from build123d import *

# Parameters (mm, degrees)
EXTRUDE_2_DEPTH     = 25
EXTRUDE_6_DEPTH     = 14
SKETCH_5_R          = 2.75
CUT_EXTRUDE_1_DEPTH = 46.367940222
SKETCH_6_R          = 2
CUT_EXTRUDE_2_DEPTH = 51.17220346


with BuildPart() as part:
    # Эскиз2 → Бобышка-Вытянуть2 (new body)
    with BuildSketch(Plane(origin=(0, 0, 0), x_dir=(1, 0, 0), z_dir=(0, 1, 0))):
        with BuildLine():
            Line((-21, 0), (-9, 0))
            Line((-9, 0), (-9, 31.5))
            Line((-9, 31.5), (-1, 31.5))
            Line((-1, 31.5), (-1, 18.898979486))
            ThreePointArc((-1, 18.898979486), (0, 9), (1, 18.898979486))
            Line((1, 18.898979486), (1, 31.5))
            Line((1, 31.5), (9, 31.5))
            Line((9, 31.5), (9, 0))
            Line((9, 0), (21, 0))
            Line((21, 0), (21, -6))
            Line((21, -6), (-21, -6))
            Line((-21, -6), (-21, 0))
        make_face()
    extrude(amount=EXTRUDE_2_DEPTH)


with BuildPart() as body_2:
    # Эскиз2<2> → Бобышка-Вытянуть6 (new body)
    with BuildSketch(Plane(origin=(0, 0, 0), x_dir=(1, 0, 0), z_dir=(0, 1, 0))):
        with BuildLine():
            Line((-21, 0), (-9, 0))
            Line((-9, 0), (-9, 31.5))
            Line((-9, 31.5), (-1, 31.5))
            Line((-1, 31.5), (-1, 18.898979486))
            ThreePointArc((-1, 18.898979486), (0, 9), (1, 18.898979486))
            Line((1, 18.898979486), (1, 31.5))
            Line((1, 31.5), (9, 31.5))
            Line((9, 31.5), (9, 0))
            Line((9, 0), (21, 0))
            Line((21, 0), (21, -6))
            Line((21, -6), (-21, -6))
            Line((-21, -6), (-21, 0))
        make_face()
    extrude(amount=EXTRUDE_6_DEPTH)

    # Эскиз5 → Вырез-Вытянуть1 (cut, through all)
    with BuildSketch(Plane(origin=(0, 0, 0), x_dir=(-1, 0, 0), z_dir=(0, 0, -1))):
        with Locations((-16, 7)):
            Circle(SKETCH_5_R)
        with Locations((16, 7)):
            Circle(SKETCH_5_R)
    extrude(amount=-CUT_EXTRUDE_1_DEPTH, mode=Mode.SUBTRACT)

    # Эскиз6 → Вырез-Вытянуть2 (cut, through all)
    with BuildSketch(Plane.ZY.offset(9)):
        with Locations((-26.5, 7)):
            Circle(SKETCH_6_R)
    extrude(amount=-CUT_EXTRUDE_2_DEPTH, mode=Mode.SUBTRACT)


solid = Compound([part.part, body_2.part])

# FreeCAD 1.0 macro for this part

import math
import FreeCAD as App
import Part
import Sketcher
Q = App.Units.Quantity

doc = App.newDocument("Part")
body = doc.addObject("PartDesign::Body", "Body")

# Sketch on XZ plane
sketch1 = body.newObject("Sketcher::SketchObject", "Sketch")
sketch1.AttachmentSupport = (doc.getObject("XZ_Plane"), [""])
sketch1.MapMode = "FlatFace"
sketch1.addGeometry(Part.LineSegment(App.Vector(-9, 0, 0), App.Vector(-21, 0, 0)), False)
sketch1.addGeometry(Part.LineSegment(App.Vector(-21, 0, 0), App.Vector(-21, 6, 0)), False)
sketch1.addGeometry(Part.LineSegment(App.Vector(-21, 6, 0), App.Vector(21, 6, 0)), False)
sketch1.addGeometry(Part.LineSegment(App.Vector(21, 6, 0), App.Vector(21, 0, 0)), False)
sketch1.addGeometry(Part.LineSegment(App.Vector(21, 0, 0), App.Vector(9, 0, 0)), False)
sketch1.addGeometry(Part.LineSegment(App.Vector(9, 0, 0), App.Vector(9, -31.5, 0)), False)
sketch1.addGeometry(Part.LineSegment(App.Vector(9, -31.5, 0), App.Vector(1, -31.5, 0)), False)
sketch1.addGeometry(Part.LineSegment(App.Vector(1, -31.5, 0), App.Vector(1, -18.9, 0)), False)
sketch1.addGeometry(Part.ArcOfCircle(Part.Circle(App.Vector(0, -14, 0), App.Vector(0, 0, 1), 5), math.radians(-78), math.radians(258)), False)
sketch1.addGeometry(Part.LineSegment(App.Vector(-1, -18.9, 0), App.Vector(-1, -31.5, 0)), False)
sketch1.addGeometry(Part.LineSegment(App.Vector(-1, -31.5, 0), App.Vector(-9, -31.5, 0)), False)
sketch1.addGeometry(Part.LineSegment(App.Vector(-9, -31.5, 0), App.Vector(-9, 0, 0)), False)
sketch1.addConstraint(Sketcher.Constraint("Coincident", 0, 2, 1, 1))
sketch1.addConstraint(Sketcher.Constraint("Coincident", 1, 2, 2, 1))
sketch1.addConstraint(Sketcher.Constraint("Coincident", 2, 2, 3, 1))
sketch1.addConstraint(Sketcher.Constraint("Coincident", 3, 2, 4, 1))
sketch1.addConstraint(Sketcher.Constraint("Coincident", 4, 2, 5, 1))
sketch1.addConstraint(Sketcher.Constraint("Coincident", 5, 2, 6, 1))
sketch1.addConstraint(Sketcher.Constraint("Coincident", 6, 2, 7, 1))
sketch1.addConstraint(Sketcher.Constraint("Coincident", 7, 2, 8, 1))
sketch1.addConstraint(Sketcher.Constraint("Coincident", 8, 2, 9, 1))
sketch1.addConstraint(Sketcher.Constraint("Coincident", 9, 2, 10, 1))
sketch1.addConstraint(Sketcher.Constraint("Coincident", 10, 2, 11, 1))
sketch1.addConstraint(Sketcher.Constraint("Coincident", 11, 2, 0, 1))
sketch1.addConstraint(Sketcher.Constraint("Horizontal", 0))
sketch1.addConstraint(Sketcher.Constraint("Vertical", 1))
sketch1.addConstraint(Sketcher.Constraint("Horizontal", 2))
sketch1.addConstraint(Sketcher.Constraint("Vertical", 3))
sketch1.addConstraint(Sketcher.Constraint("Horizontal", 4))
sketch1.addConstraint(Sketcher.Constraint("Vertical", 5))
sketch1.addConstraint(Sketcher.Constraint("Horizontal", 6))
sketch1.addConstraint(Sketcher.Constraint("Vertical", 7))
sketch1.addConstraint(Sketcher.Constraint("Vertical", 9))
sketch1.addConstraint(Sketcher.Constraint("Horizontal", 10))
sketch1.addConstraint(Sketcher.Constraint("Vertical", 11))
sketch1.addConstraint(Sketcher.Constraint("Symmetric", 0, 2, 3, 2, -1, 1))
sketch1.addConstraint(Sketcher.Constraint("Symmetric", 7, 2, 8, 2, -2))
sketch1.addConstraint(Sketcher.Constraint("Symmetric", 5, 2, 10, 2, -2))
sketch1.addConstraint(Sketcher.Constraint("PointOnObject", 0, 2, -1))
sketch1.addConstraint(Sketcher.Constraint("Radius", 8, Q("5 mm")))
sketch1.addConstraint(Sketcher.Constraint("DistanceX", 0, 2, 0, 1, Q("12 mm")))
sketch1.addConstraint(Sketcher.Constraint("DistanceX", 2, 1, 2, 2, Q("42 mm")))
sketch1.addConstraint(Sketcher.Constraint("DistanceX", 6, 2, 6, 1, Q("8 mm")))
sketch1.addConstraint(Sketcher.Constraint("DistanceY", 1, 1, 1, 2, Q("6 mm")))
sketch1.addConstraint(Sketcher.Constraint("DistanceY", 5, 2, 5, 1, Q("31.5 mm")))
sketch1.addConstraint(Sketcher.Constraint("DistanceY", 8, 3, -1, 1, Q("14 mm")))
pad1 = body.newObject("PartDesign::Pad", "Pad")
pad1.Profile = sketch1
pad1.Length = 25
pad1.Reversed = True
body2 = doc.addObject("PartDesign::Body", "Body001")

# Sketch on XZ plane
sketch2 = body2.newObject("Sketcher::SketchObject", "Sketch001")
sketch2.AttachmentSupport = (doc.getObject("XZ_Plane001"), [""])
sketch2.MapMode = "FlatFace"
sketch2.addGeometry(Part.LineSegment(App.Vector(-9, 0, 0), App.Vector(-21, 0, 0)), False)
sketch2.addGeometry(Part.LineSegment(App.Vector(-21, 0, 0), App.Vector(-21, 6, 0)), False)
sketch2.addGeometry(Part.LineSegment(App.Vector(-21, 6, 0), App.Vector(21, 6, 0)), False)
sketch2.addGeometry(Part.LineSegment(App.Vector(21, 6, 0), App.Vector(21, 0, 0)), False)
sketch2.addGeometry(Part.LineSegment(App.Vector(21, 0, 0), App.Vector(9, 0, 0)), False)
sketch2.addGeometry(Part.LineSegment(App.Vector(9, 0, 0), App.Vector(9, -31.5, 0)), False)
sketch2.addGeometry(Part.LineSegment(App.Vector(9, -31.5, 0), App.Vector(1, -31.5, 0)), False)
sketch2.addGeometry(Part.LineSegment(App.Vector(1, -31.5, 0), App.Vector(1, -18.9, 0)), False)
sketch2.addGeometry(Part.ArcOfCircle(Part.Circle(App.Vector(0, -14, 0), App.Vector(0, 0, 1), 5), math.radians(-78), math.radians(258)), False)
sketch2.addGeometry(Part.LineSegment(App.Vector(-1, -18.9, 0), App.Vector(-1, -31.5, 0)), False)
sketch2.addGeometry(Part.LineSegment(App.Vector(-1, -31.5, 0), App.Vector(-9, -31.5, 0)), False)
sketch2.addGeometry(Part.LineSegment(App.Vector(-9, -31.5, 0), App.Vector(-9, 0, 0)), False)
sketch2.addConstraint(Sketcher.Constraint("Coincident", 0, 2, 1, 1))
sketch2.addConstraint(Sketcher.Constraint("Coincident", 1, 2, 2, 1))
sketch2.addConstraint(Sketcher.Constraint("Coincident", 2, 2, 3, 1))
sketch2.addConstraint(Sketcher.Constraint("Coincident", 3, 2, 4, 1))
sketch2.addConstraint(Sketcher.Constraint("Coincident", 4, 2, 5, 1))
sketch2.addConstraint(Sketcher.Constraint("Coincident", 5, 2, 6, 1))
sketch2.addConstraint(Sketcher.Constraint("Coincident", 6, 2, 7, 1))
sketch2.addConstraint(Sketcher.Constraint("Coincident", 7, 2, 8, 1))
sketch2.addConstraint(Sketcher.Constraint("Coincident", 8, 2, 9, 1))
sketch2.addConstraint(Sketcher.Constraint("Coincident", 9, 2, 10, 1))
sketch2.addConstraint(Sketcher.Constraint("Coincident", 10, 2, 11, 1))
sketch2.addConstraint(Sketcher.Constraint("Coincident", 11, 2, 0, 1))
sketch2.addConstraint(Sketcher.Constraint("Horizontal", 0))
sketch2.addConstraint(Sketcher.Constraint("Vertical", 1))
sketch2.addConstraint(Sketcher.Constraint("Horizontal", 2))
sketch2.addConstraint(Sketcher.Constraint("Vertical", 3))
sketch2.addConstraint(Sketcher.Constraint("Horizontal", 4))
sketch2.addConstraint(Sketcher.Constraint("Vertical", 5))
sketch2.addConstraint(Sketcher.Constraint("Horizontal", 6))
sketch2.addConstraint(Sketcher.Constraint("Vertical", 7))
sketch2.addConstraint(Sketcher.Constraint("Vertical", 9))
sketch2.addConstraint(Sketcher.Constraint("Horizontal", 10))
sketch2.addConstraint(Sketcher.Constraint("Vertical", 11))
sketch2.addConstraint(Sketcher.Constraint("Symmetric", 0, 2, 3, 2, -1, 1))
sketch2.addConstraint(Sketcher.Constraint("Symmetric", 7, 2, 8, 2, -2))
sketch2.addConstraint(Sketcher.Constraint("Symmetric", 5, 2, 10, 2, -2))
sketch2.addConstraint(Sketcher.Constraint("PointOnObject", 0, 2, -1))
sketch2.addConstraint(Sketcher.Constraint("Radius", 8, Q("5 mm")))
sketch2.addConstraint(Sketcher.Constraint("DistanceX", 0, 2, 0, 1, Q("12 mm")))
sketch2.addConstraint(Sketcher.Constraint("DistanceX", 2, 1, 2, 2, Q("42 mm")))
sketch2.addConstraint(Sketcher.Constraint("DistanceX", 6, 2, 6, 1, Q("8 mm")))
sketch2.addConstraint(Sketcher.Constraint("DistanceY", 1, 1, 1, 2, Q("6 mm")))
sketch2.addConstraint(Sketcher.Constraint("DistanceY", 5, 2, 5, 1, Q("31.5 mm")))
sketch2.addConstraint(Sketcher.Constraint("DistanceY", 8, 3, -1, 1, Q("14 mm")))
pad2 = body2.newObject("PartDesign::Pad", "Pad001")
pad2.Profile = sketch2
pad2.Length = 14
pad2.Reversed = True

# Sketch on XY plane
sketch3 = body2.newObject("Sketcher::SketchObject", "Sketch002")
sketch3.AttachmentSupport = (doc.getObject("XY_Plane001"), [""])
sketch3.MapMode = "FlatFace"
sketch3.addGeometry(Part.Circle(App.Vector(16, 7, 0), App.Vector(0, 0, 1), 2.8), False)
sketch3.addGeometry(Part.Circle(App.Vector(-16, 7, 0), App.Vector(0, 0, 1), 2.8), False)
sketch3.addConstraint(Sketcher.Constraint("Equal", 0, 1))
sketch3.addConstraint(Sketcher.Constraint("Symmetric", 0, 3, 1, 3, -2))
sketch3.addConstraint(Sketcher.Constraint("Diameter", 0, Q("5.5 mm")))
sketch3.addConstraint(Sketcher.Constraint("DistanceX", -1, 1, 0, 3, Q("16 mm")))
sketch3.addConstraint(Sketcher.Constraint("DistanceY", -1, 1, 0, 3, Q("7 mm")))
pocket1 = body2.newObject("PartDesign::Pocket", "Pocket")
pocket1.Profile = sketch3
pocket1.Type = "ThroughAll"
pocket1.Reversed = True

# Sketch on YZ plane
sketch4 = body2.newObject("Sketcher::SketchObject", "Sketch003")
sketch4.AttachmentSupport = (doc.getObject("YZ_Plane001"), [""])
sketch4.MapMode = "FlatFace"
sketch4.AttachmentOffset = App.Placement(App.Vector(0, 0, -9), App.Rotation())
sketch4.addGeometry(Part.Circle(App.Vector(7, -26.5, 0), App.Vector(0, 0, 1), 2), False)
sketch4.addConstraint(Sketcher.Constraint("Diameter", 0, Q("4 mm")))
sketch4.addConstraint(Sketcher.Constraint("DistanceX", -1, 1, 0, 3, Q("7 mm")))
sketch4.addConstraint(Sketcher.Constraint("DistanceY", 0, 3, -1, 1, Q("26.5 mm")))
pocket2 = body2.newObject("PartDesign::Pocket", "Pocket001")
pocket2.Profile = sketch4
pocket2.Type = "ThroughAll"
pocket2.Reversed = True

doc.recompute()
